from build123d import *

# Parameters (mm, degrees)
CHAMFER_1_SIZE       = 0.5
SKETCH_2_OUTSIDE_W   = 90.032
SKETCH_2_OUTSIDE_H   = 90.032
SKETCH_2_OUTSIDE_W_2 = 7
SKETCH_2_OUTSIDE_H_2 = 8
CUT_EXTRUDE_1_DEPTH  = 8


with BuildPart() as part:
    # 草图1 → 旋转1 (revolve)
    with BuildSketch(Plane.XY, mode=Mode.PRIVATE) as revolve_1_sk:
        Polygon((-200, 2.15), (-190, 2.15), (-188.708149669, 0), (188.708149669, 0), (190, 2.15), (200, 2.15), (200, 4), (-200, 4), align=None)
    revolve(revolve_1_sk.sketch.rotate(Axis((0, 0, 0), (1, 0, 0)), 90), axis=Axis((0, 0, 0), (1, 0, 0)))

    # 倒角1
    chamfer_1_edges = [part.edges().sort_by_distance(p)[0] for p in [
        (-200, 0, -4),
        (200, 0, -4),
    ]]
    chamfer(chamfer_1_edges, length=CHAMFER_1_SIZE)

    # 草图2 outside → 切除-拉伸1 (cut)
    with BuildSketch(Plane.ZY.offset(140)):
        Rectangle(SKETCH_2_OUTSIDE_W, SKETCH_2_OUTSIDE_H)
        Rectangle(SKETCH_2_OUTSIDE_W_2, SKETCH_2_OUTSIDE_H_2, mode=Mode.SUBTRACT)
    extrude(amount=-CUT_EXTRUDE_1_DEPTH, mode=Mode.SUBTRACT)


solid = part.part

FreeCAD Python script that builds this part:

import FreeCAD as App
import Part
import Sketcher

V = App.Vector
Q = App.Units.Quantity


def edges_at(feature, points):
    """Names of the edges that pass closest to the given points."""
    edges = feature.Shape.Edges
    near = lambda p: min(range(len(edges)), key=lambda i: edges[i].distToShape(Part.Vertex(*p))[0])
    return sorted({f"Edge{near(p) + 1}" for p in points})

doc = App.newDocument("Part")
body = doc.addObject("PartDesign::Body", "Body")

# Sketch on XY plane
sketch1 = body.newObject("Sketcher::SketchObject", "Sketch")
sketch1.AttachmentSupport = (doc.getObject("XY_Plane"), [""])
sketch1.MapMode = "FlatFace"
sketch1.addGeometry(Part.LineSegment(V(-200, 2.1, 0), V(-190, 2.1, 0)), False)
sketch1.addGeometry(Part.LineSegment(V(-190, 2.1, 0), V(-188.7, 0, 0)), False)
sketch1.addGeometry(Part.LineSegment(V(-188.7, 0, 0), V(188.7, 0, 0)), False)
sketch1.addGeometry(Part.LineSegment(V(188.7, 0, 0), V(190, 2.1, 0)), False)
sketch1.addGeometry(Part.LineSegment(V(190, 2.1, 0), V(200, 2.1, 0)), False)
sketch1.addGeometry(Part.LineSegment(V(200, 2.1, 0), V(200, 4, 0)), False)
sketch1.addGeometry(Part.LineSegment(V(200, 4, 0), V(-200, 4, 0)), False)
sketch1.addGeometry(Part.LineSegment(V(-200, 4, 0), V(-200, 2.1, 0)), False)
sketch1.addConstraint(Sketcher.Constraint("Coincident", 0, 2, 1, 1))
sketch1.addConstraint(Sketcher.Constraint("Coincident", 1, 2, 2, 1))
sketch1.addConstraint(Sketcher.Constraint("Coincident", 2, 2, 3, 1))
sketch1.addConstraint(Sketcher.Constraint("Coincident", 3, 2, 4, 1))
sketch1.addConstraint(Sketcher.Constraint("Coincident", 4, 2, 5, 1))
sketch1.addConstraint(Sketcher.Constraint("Coincident", 5, 2, 6, 1))
sketch1.addConstraint(Sketcher.Constraint("Coincident", 6, 2, 7, 1))
sketch1.addConstraint(Sketcher.Constraint("Coincident", 7, 2, 0, 1))
sketch1.addConstraint(Sketcher.Constraint("Horizontal", 0))
sketch1.addConstraint(Sketcher.Constraint("Horizontal", 2))
sketch1.addConstraint(Sketcher.Constraint("Horizontal", 4))
sketch1.addConstraint(Sketcher.Constraint("Vertical", 5))
sketch1.addConstraint(Sketcher.Constraint("Horizontal", 6))
sketch1.addConstraint(Sketcher.Constraint("Vertical", 7))
sketch1.addConstraint(Sketcher.Constraint("Symmetric", 1, 2, 2, 2, -1, 1))
sketch1.addConstraint(Sketcher.Constraint("Symmetric", 0, 2, 3, 2, -2))
sketch1.addConstraint(Sketcher.Constraint("Equal", 0, 4))
sketch1.addConstraint(Sketcher.Constraint("DistanceX", 0, 1, 0, 2, Q("10 mm")))
sketch1.addConstraint(Sketcher.Constraint("DistanceX", 6, 2, 6, 1, Q("400 mm")))
sketch1.addConstraint(Sketcher.Constraint("Angle", 1, Q("-59 deg")))
sketch1.addConstraint(Sketcher.Constraint("DistanceY", -1, 1, 5, 2, Q("4 mm")))
sketch1.addConstraint(Sketcher.Constraint("DistanceY", 5, 1, 5, 2, Q("1.85 mm")))
revolution = body.newObject("PartDesign::Revolution", "Revolution")
revolution.Profile = sketch1
revolution.ReferenceAxis = (sketch1, ["H_Axis"])
revolution.Angle = 360
doc.recompute()

chamfer = body.newObject("PartDesign::Chamfer", "Chamfer")
chamfer.Base = (revolution, edges_at(revolution, [(-200, 0, -4), (200, 0, -4)]))
chamfer.Size = 0.5

# Sketch on YZ plane
sketch2 = body.newObject("Sketcher::SketchObject", "Sketch001")
sketch2.AttachmentSupport = (doc.getObject("YZ_Plane"), [""])
sketch2.MapMode = "FlatFace"
sketch2.AttachmentOffset = App.Placement(V(0, 0, -140), App.Rotation())
sketch2.addGeometry(Part.LineSegment(V(45, -45, 0), V(-45, -45, 0)), False)
sketch2.addGeometry(Part.LineSegment(V(-45, -45, 0), V(-45, 45, 0)), False)
sketch2.addGeometry(Part.LineSegment(V(-45, 45, 0), V(45, 45, 0)), False)
sketch2.addGeometry(Part.LineSegment(V(45, 45, 0), V(45, -45, 0)), False)
sketch2.addGeometry(Part.LineSegment(V(-4, 4, 0), V(-4, -4, 0)), False)
sketch2.addGeometry(Part.LineSegment(V(-4, -4, 0), V(4, -4, 0)), False)
sketch2.addGeometry(Part.LineSegment(V(4, -4, 0), V(4, 4, 0)), False)
sketch2.addGeometry(Part.LineSegment(V(4, 4, 0), V(-4, 4, 0)), False)
sketch2.addConstraint(Sketcher.Constraint("Coincident", 0, 2, 1, 1))
sketch2.addConstraint(Sketcher.Constraint("Coincident", 1, 2, 2, 1))
sketch2.addConstraint(Sketcher.Constraint("Coincident", 2, 2, 3, 1))
sketch2.addConstraint(Sketcher.Constraint("Coincident", 3, 2, 0, 1))
sketch2.addConstraint(Sketcher.Constraint("Coincident", 4, 2, 5, 1))
sketch2.addConstraint(Sketcher.Constraint("Coincident", 5, 2, 6, 1))
sketch2.addConstraint(Sketcher.Constraint("Coincident", 6, 2, 7, 1))
sketch2.addConstraint(Sketcher.Constraint("Coincident", 7, 2, 4, 1))
sketch2.addConstraint(Sketcher.Constraint("Horizontal", 0))
sketch2.addConstraint(Sketcher.Constraint("Vertical", 1))
sketch2.addConstraint(Sketcher.Constraint("Horizontal", 2))
sketch2.addConstraint(Sketcher.Constraint("Vertical", 3))
sketch2.addConstraint(Sketcher.Constraint("Vertical", 4))
sketch2.addConstraint(Sketcher.Constraint("Horizontal", 5))
sketch2.addConstraint(Sketcher.Constraint("Vertical", 6))
sketch2.addConstraint(Sketcher.Constraint("Horizontal", 7))
sketch2.addConstraint(Sketcher.Constraint("Symmetric", 0, 2, 2, 2, -1, 1))
sketch2.addConstraint(Sketcher.Constraint("Symmetric", 4, 2, 6, 2, -1, 1))
sketch2.addConstraint(Sketcher.Constraint("Equal", 2, 1))
sketch2.addConstraint(Sketcher.Constraint("DistanceX", 5, 1, 5, 2, Q("8 mm")))
sketch2.addConstraint(Sketcher.Constraint("DistanceY", 4, 2, 4, 1, Q("7 mm")))
sketch2.addConstraint(Sketcher.Constraint("DistanceX", 0, 2, 0, 1, Q("90.032 mm")))
pocket1 = body.newObject("PartDesign::Pocket", "Pocket")
pocket1.Profile = sketch2
pocket1.Length = 8
pocket1.Reversed = True

doc.recompute()
